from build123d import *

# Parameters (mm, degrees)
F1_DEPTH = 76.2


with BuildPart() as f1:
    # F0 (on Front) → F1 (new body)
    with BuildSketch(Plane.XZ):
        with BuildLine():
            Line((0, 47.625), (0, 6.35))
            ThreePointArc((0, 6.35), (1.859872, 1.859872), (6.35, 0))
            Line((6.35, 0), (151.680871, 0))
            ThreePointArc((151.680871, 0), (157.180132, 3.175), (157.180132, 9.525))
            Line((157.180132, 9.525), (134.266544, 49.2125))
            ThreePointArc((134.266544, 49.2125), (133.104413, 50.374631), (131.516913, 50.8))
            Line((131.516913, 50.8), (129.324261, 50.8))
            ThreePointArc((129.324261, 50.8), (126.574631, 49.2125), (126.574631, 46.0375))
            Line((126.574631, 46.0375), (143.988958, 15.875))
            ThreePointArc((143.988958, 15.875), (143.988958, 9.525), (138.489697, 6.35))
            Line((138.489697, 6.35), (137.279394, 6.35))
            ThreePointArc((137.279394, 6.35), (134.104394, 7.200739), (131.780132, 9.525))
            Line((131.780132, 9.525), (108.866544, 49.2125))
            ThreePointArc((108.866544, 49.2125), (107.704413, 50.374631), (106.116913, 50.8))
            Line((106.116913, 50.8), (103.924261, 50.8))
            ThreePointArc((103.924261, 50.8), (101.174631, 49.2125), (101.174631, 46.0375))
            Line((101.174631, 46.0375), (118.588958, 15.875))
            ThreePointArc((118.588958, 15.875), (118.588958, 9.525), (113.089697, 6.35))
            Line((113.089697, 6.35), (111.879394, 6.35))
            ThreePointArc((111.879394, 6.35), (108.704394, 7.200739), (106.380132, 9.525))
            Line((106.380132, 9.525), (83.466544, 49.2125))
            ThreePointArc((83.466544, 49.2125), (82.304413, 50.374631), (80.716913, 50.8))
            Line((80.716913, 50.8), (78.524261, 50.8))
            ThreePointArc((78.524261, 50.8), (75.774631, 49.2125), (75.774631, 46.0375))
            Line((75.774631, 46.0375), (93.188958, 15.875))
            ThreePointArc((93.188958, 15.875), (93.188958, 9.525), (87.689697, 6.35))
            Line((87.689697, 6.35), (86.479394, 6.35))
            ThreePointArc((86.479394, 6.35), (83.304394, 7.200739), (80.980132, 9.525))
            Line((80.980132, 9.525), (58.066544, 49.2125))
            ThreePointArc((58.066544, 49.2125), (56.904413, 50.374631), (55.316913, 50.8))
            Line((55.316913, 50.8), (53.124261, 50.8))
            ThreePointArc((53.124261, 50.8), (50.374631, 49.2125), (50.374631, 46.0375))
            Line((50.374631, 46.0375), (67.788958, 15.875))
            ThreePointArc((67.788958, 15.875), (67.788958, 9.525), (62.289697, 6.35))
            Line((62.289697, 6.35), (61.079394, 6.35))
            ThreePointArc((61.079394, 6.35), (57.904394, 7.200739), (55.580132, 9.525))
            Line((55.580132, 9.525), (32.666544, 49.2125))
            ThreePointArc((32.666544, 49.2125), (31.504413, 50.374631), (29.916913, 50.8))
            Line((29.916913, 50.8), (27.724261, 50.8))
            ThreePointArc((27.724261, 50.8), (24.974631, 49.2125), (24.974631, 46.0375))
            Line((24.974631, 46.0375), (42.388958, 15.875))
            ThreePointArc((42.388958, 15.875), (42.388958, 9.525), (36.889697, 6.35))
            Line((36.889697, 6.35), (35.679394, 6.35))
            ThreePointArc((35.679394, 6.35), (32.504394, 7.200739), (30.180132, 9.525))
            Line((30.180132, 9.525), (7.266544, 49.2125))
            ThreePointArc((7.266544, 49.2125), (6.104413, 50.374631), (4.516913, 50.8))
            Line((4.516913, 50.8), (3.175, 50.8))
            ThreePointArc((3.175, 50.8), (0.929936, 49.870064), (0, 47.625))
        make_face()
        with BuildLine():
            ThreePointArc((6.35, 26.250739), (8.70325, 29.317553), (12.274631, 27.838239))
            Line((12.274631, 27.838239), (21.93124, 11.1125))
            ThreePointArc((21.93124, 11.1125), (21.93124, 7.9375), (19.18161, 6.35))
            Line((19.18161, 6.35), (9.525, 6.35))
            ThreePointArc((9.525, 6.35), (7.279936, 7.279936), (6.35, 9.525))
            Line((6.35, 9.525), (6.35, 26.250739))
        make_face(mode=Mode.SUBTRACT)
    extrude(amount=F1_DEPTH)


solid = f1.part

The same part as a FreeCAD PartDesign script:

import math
import FreeCAD as App
import Part
import Sketcher
from FreeCAD import Vector
Q = App.Units.Quantity

doc = App.newDocument("Part")
body = doc.addObject("PartDesign::Body", "Body")

sketch1 = doc.addObject("Sketcher::SketchObject", "Sketch")
body.addObject(sketch1)
sketch1.AttachmentSupport = (doc.XZ_Plane, [""])
sketch1.MapMode = "FlatFace"
sketch1.addGeometry(Part.LineSegment(Vector(0, 47.625, 0), Vector(0, 6.35, 0)), False)
sketch1.addGeometry(Part.ArcOfCircle(Part.Circle(Vector(6.35, 6.35, 0), Vector(0, 0, 1), 6.35), math.radians(-179.999998), math.radians(-90.000002)), False)
sketch1.addGeometry(Part.LineSegment(Vector(6.35, 0, 0), Vector(151.680871, 0, 0)), False)
sketch1.addGeometry(Part.ArcOfCircle(Part.Circle(Vector(151.680871, 6.35, 0), Vector(0, 0, 1), 6.35), math.radians(-89.999997), math.radians(30)), False)
sketch1.addGeometry(Part.LineSegment(Vector(157.180132, 9.525, 0), Vector(134.266544, 49.2125, 0)), False)
sketch1.addGeometry(Part.ArcOfCircle(Part.Circle(Vector(131.516914, 47.625001, 0), Vector(0, 0, 1), 3.174999), math.radians(29.999992), math.radians(90.000015)), False)
sketch1.addGeometry(Part.LineSegment(Vector(131.516913, 50.8, 0), Vector(129.324261, 50.8, 0)), False)
sketch1.addGeometry(Part.ArcOfCircle(Part.Circle(Vector(129.324262, 47.625, 0), Vector(0, 0, 1), 3.175), math.radians(90.000012), math.radians(210)), False)
sketch1.addGeometry(Part.LineSegment(Vector(126.574631, 46.0375, 0), Vector(143.988958, 15.875, 0)), False)
sketch1.addGeometry(Part.ArcOfCircle(Part.Circle(Vector(138.489697, 12.7, 0), Vector(0, 0, 1), 6.35), math.radians(-89.999997), math.radians(30)), False)
sketch1.addGeometry(Part.LineSegment(Vector(138.489697, 6.35, 0), Vector(137.279394, 6.35, 0)), False)
sketch1.addGeometry(Part.ArcOfCircle(Part.Circle(Vector(137.279396, 12.700004, 0), Vector(0, 0, 1), 6.350004), math.radians(-149.999979), math.radians(-90.000015)), False)
sketch1.addGeometry(Part.LineSegment(Vector(131.780132, 9.525, 0), Vector(108.866544, 49.2125, 0)), False)
sketch1.addGeometry(Part.ArcOfCircle(Part.Circle(Vector(106.116914, 47.625001, 0), Vector(0, 0, 1), 3.174999), math.radians(29.999992), math.radians(90.000015)), False)
sketch1.addGeometry(Part.LineSegment(Vector(106.116913, 50.8, 0), Vector(103.924261, 50.8, 0)), False)
sketch1.addGeometry(Part.ArcOfCircle(Part.Circle(Vector(103.924262, 47.625, 0), Vector(0, 0, 1), 3.175), math.radians(90.000012), math.radians(210)), False)
sketch1.addGeometry(Part.LineSegment(Vector(101.174631, 46.0375, 0), Vector(118.588958, 15.875, 0)), False)
sketch1.addGeometry(Part.ArcOfCircle(Part.Circle(Vector(113.089697, 12.7, 0), Vector(0, 0, 1), 6.35), math.radians(-89.999997), math.radians(30)), False)
sketch1.addGeometry(Part.LineSegment(Vector(113.089697, 6.35, 0), Vector(111.879394, 6.35, 0)), False)
sketch1.addGeometry(Part.ArcOfCircle(Part.Circle(Vector(111.879396, 12.700004, 0), Vector(0, 0, 1), 6.350004), math.radians(-149.999979), math.radians(-90.000015)), False)
sketch1.addGeometry(Part.LineSegment(Vector(106.380132, 9.525, 0), Vector(83.466544, 49.2125, 0)), False)
sketch1.addGeometry(Part.ArcOfCircle(Part.Circle(Vector(80.716914, 47.625001, 0), Vector(0, 0, 1), 3.174999), math.radians(29.999992), math.radians(90.000015)), False)
sketch1.addGeometry(Part.LineSegment(Vector(80.716913, 50.8, 0), Vector(78.524261, 50.8, 0)), False)
sketch1.addGeometry(Part.ArcOfCircle(Part.Circle(Vector(78.524262, 47.625, 0), Vector(0, 0, 1), 3.175), math.radians(90.000012), math.radians(210)), False)
sketch1.addGeometry(Part.LineSegment(Vector(75.774631, 46.0375, 0), Vector(93.188958, 15.875, 0)), False)
sketch1.addGeometry(Part.ArcOfCircle(Part.Circle(Vector(87.689697, 12.7, 0), Vector(0, 0, 1), 6.35), math.radians(-89.999997), math.radians(30)), False)
sketch1.addGeometry(Part.LineSegment(Vector(87.689697, 6.35, 0), Vector(86.479394, 6.35, 0)), False)
sketch1.addGeometry(Part.ArcOfCircle(Part.Circle(Vector(86.479396, 12.700004, 0), Vector(0, 0, 1), 6.350004), math.radians(-149.999979), math.radians(-90.000015)), False)
sketch1.addGeometry(Part.LineSegment(Vector(80.980132, 9.525, 0), Vector(58.066544, 49.2125, 0)), False)
sketch1.addGeometry(Part.ArcOfCircle(Part.Circle(Vector(55.316914, 47.625001, 0), Vector(0, 0, 1), 3.174999), math.radians(29.999992), math.radians(90.000015)), False)
sketch1.addGeometry(Part.LineSegment(Vector(55.316913, 50.8, 0), Vector(53.124261, 50.8, 0)), False)
sketch1.addGeometry(Part.ArcOfCircle(Part.Circle(Vector(53.124262, 47.625, 0), Vector(0, 0, 1), 3.175), math.radians(90.000012), math.radians(210)), False)
sketch1.addGeometry(Part.LineSegment(Vector(50.374631, 46.0375, 0), Vector(67.788958, 15.875, 0)), False)
sketch1.addGeometry(Part.ArcOfCircle(Part.Circle(Vector(62.289697, 12.7, 0), Vector(0, 0, 1), 6.35), math.radians(-89.999997), math.radians(30)), False)
sketch1.addGeometry(Part.LineSegment(Vector(62.289697, 6.35, 0), Vector(61.079394, 6.35, 0)), False)
sketch1.addGeometry(Part.ArcOfCircle(Part.Circle(Vector(61.079396, 12.700004, 0), Vector(0, 0, 1), 6.350004), math.radians(-149.999979), math.radians(-90.000015)), False)
sketch1.addGeometry(Part.LineSegment(Vector(55.580132, 9.525, 0), Vector(32.666544, 49.2125, 0)), False)
sketch1.addGeometry(Part.ArcOfCircle(Part.Circle(Vector(29.916914, 47.625001, 0), Vector(0, 0, 1), 3.174999), math.radians(29.999992), math.radians(90.000015)), False)
sketch1.addGeometry(Part.LineSegment(Vector(29.916913, 50.8, 0), Vector(27.724261, 50.8, 0)), False)
sketch1.addGeometry(Part.ArcOfCircle(Part.Circle(Vector(27.724262, 47.625, 0), Vector(0, 0, 1), 3.175), math.radians(90.000012), math.radians(210)), False)
sketch1.addGeometry(Part.LineSegment(Vector(24.974631, 46.0375, 0), Vector(42.388958, 15.875, 0)), False)
sketch1.addGeometry(Part.ArcOfCircle(Part.Circle(Vector(36.889697, 12.7, 0), Vector(0, 0, 1), 6.35), math.radians(-89.999997), math.radians(30)), False)
sketch1.addGeometry(Part.LineSegment(Vector(36.889697, 6.35, 0), Vector(35.679394, 6.35, 0)), False)
sketch1.addGeometry(Part.ArcOfCircle(Part.Circle(Vector(35.679396, 12.700004, 0), Vector(0, 0, 1), 6.350004), math.radians(-149.999979), math.radians(-90.000015)), False)
sketch1.addGeometry(Part.LineSegment(Vector(30.180132, 9.525, 0), Vector(7.266544, 49.2125, 0)), False)
sketch1.addGeometry(Part.ArcOfCircle(Part.Circle(Vector(4.516914, 47.625001, 0), Vector(0, 0, 1), 3.174999), math.radians(29.999992), math.radians(90.000015)), False)
sketch1.addGeometry(Part.LineSegment(Vector(4.516913, 50.8, 0), Vector(3.175, 50.8, 0)), False)
sketch1.addGeometry(Part.ArcOfCircle(Part.Circle(Vector(3.175, 47.625, 0), Vector(0, 0, 1), 3.175), math.radians(90.000002), math.radians(179.999998)), False)
sketch1.addGeometry(Part.LineSegment(Vector(6.35, 9.525, 0), Vector(6.35, 26.250739, 0)), False)
sketch1.addGeometry(Part.ArcOfCircle(Part.Circle(Vector(9.525, 26.250738, 0), Vector(0, 0, 1), 3.175), math.radians(30.000015), math.radians(179.999983)), False)
sketch1.addGeometry(Part.LineSegment(Vector(12.274631, 27.838239, 0), Vector(21.93124, 11.1125, 0)), False)
sketch1.addGeometry(Part.ArcOfCircle(Part.Circle(Vector(19.181609, 9.525, 0), Vector(0, 0, 1), 3.175), math.radians(-89.999988), math.radians(30)), False)
sketch1.addGeometry(Part.LineSegment(Vector(19.18161, 6.35, 0), Vector(9.525, 6.35, 0)), False)
sketch1.addGeometry(Part.ArcOfCircle(Part.Circle(Vector(9.525, 9.525, 0), Vector(0, 0, 1), 3.175), math.radians(-179.999998), math.radians(-90.000002)), False)
sketch1.addConstraint(Sketcher.Constraint("Coincident", 0, 2, 1, 1))
sketch1.addConstraint(Sketcher.Constraint("Coincident", 1, 2, 2, 1))
sketch1.addConstraint(Sketcher.Constraint("Coincident", 2, 2, 3, 1))
sketch1.addConstraint(Sketcher.Constraint("Coincident", 3, 2, 4, 1))
sketch1.addConstraint(Sketcher.Constraint("Coincident", 4, 2, 5, 1))
sketch1.addConstraint(Sketcher.Constraint("Coincident", 5, 2, 6, 1))
sketch1.addConstraint(Sketcher.Constraint("Coincident", 6, 2, 7, 1))
sketch1.addConstraint(Sketcher.Constraint("Coincident", 7, 2, 8, 1))
sketch1.addConstraint(Sketcher.Constraint("Coincident", 8, 2, 9, 2))
sketch1.addConstraint(Sketcher.Constraint("Coincident", 9, 1, 10, 1))
sketch1.addConstraint(Sketcher.Constraint("Coincident", 10, 2, 11, 2))
sketch1.addConstraint(Sketcher.Constraint("Coincident", 11, 1, 12, 1))
sketch1.addConstraint(Sketcher.Constraint("Coincident", 12, 2, 13, 1))
sketch1.addConstraint(Sketcher.Constraint("Coincident", 13, 2, 14, 1))
sketch1.addConstraint(Sketcher.Constraint("Coincident", 14, 2, 15, 1))
sketch1.addConstraint(Sketcher.Constraint("Coincident", 15, 2, 16, 1))
sketch1.addConstraint(Sketcher.Constraint("Coincident", 16, 2, 17, 2))
sketch1.addConstraint(Sketcher.Constraint("Coincident", 17, 1, 18, 1))
sketch1.addConstraint(Sketcher.Constraint("Coincident", 18, 2, 19, 2))
sketch1.addConstraint(Sketcher.Constraint("Coincident", 19, 1, 20, 1))
sketch1.addConstraint(Sketcher.Constraint("Coincident", 20, 2, 21, 1))
sketch1.addConstraint(Sketcher.Constraint("Coincident", 21, 2, 22, 1))
sketch1.addConstraint(Sketcher.Constraint("Coincident", 22, 2, 23, 1))
sketch1.addConstraint(Sketcher.Constraint("Coincident", 23, 2, 24, 1))
sketch1.addConstraint(Sketcher.Constraint("Coincident", 24, 2, 25, 2))
sketch1.addConstraint(Sketcher.Constraint("Coincident", 25, 1, 26, 1))
sketch1.addConstraint(Sketcher.Constraint("Coincident", 26, 2, 27, 2))
sketch1.addConstraint(Sketcher.Constraint("Coincident", 27, 1, 28, 1))
sketch1.addConstraint(Sketcher.Constraint("Coincident", 28, 2, 29, 1))
sketch1.addConstraint(Sketcher.Constraint("Coincident", 29, 2, 30, 1))
sketch1.addConstraint(Sketcher.Constraint("Coincident", 30, 2, 31, 1))
sketch1.addConstraint(Sketcher.Constraint("Coincident", 31, 2, 32, 1))
sketch1.addConstraint(Sketcher.Constraint("Coincident", 32, 2, 33, 2))
sketch1.addConstraint(Sketcher.Constraint("Coincident", 33, 1, 34, 1))
sketch1.addConstraint(Sketcher.Constraint("Coincident", 34, 2, 35, 2))
sketch1.addConstraint(Sketcher.Constraint("Coincident", 35, 1, 36, 1))
sketch1.addConstraint(Sketcher.Constraint("Coincident", 36, 2, 37, 1))
sketch1.addConstraint(Sketcher.Constraint("Coincident", 37, 2, 38, 1))
sketch1.addConstraint(Sketcher.Constraint("Coincident", 38, 2, 39, 1))
sketch1.addConstraint(Sketcher.Constraint("Coincident", 39, 2, 40, 1))
sketch1.addConstraint(Sketcher.Constraint("Coincident", 40, 2, 41, 2))
sketch1.addConstraint(Sketcher.Constraint("Coincident", 41, 1, 42, 1))
sketch1.addConstraint(Sketcher.Constraint("Coincident", 42, 2, 43, 2))
sketch1.addConstraint(Sketcher.Constraint("Coincident", 43, 1, 44, 1))
sketch1.addConstraint(Sketcher.Constraint("Coincident", 44, 2, 45, 1))
sketch1.addConstraint(Sketcher.Constraint("Coincident", 45, 2, 46, 1))
sketch1.addConstraint(Sketcher.Constraint("Coincident", 46, 2, 47, 1))
sketch1.addConstraint(Sketcher.Constraint("Coincident", 47, 2, 0, 1))
sketch1.addConstraint(Sketcher.Constraint("Coincident", 48, 2, 49, 2))
sketch1.addConstraint(Sketcher.Constraint("Coincident", 49, 1, 50, 1))
sketch1.addConstraint(Sketcher.Constraint("Coincident", 50, 2, 51, 2))
sketch1.addConstraint(Sketcher.Constraint("Coincident", 51, 1, 52, 1))
sketch1.addConstraint(Sketcher.Constraint("Coincident", 52, 2, 53, 2))
sketch1.addConstraint(Sketcher.Constraint("Coincident", 53, 1, 48, 1))
sketch1.addConstraint(Sketcher.Constraint("Vertical", 0))
sketch1.addConstraint(Sketcher.Constraint("Horizontal", 2))
sketch1.addConstraint(Sketcher.Constraint("Horizontal", 6))
sketch1.addConstraint(Sketcher.Constraint("Horizontal", 10))
sketch1.addConstraint(Sketcher.Constraint("Horizontal", 14))
sketch1.addConstraint(Sketcher.Constraint("Horizontal", 18))
sketch1.addConstraint(Sketcher.Constraint("Horizontal", 22))
sketch1.addConstraint(Sketcher.Constraint("Horizontal", 26))
sketch1.addConstraint(Sketcher.Constraint("Horizontal", 30))
sketch1.addConstraint(Sketcher.Constraint("Horizontal", 34))
sketch1.addConstraint(Sketcher.Constraint("Horizontal", 38))
sketch1.addConstraint(Sketcher.Constraint("Horizontal", 42))
sketch1.addConstraint(Sketcher.Constraint("Horizontal", 46))
sketch1.addConstraint(Sketcher.Constraint("Vertical", 48))
sketch1.addConstraint(Sketcher.Constraint("Horizontal", 52))
sketch1.addConstraint(Sketcher.Constraint("PointOnObject", 0, 2, -2))
sketch1.addConstraint(Sketcher.Constraint("PointOnObject", 1, 2, -1))
sketch1.addConstraint(Sketcher.Constraint("Radius", 1, Q("0.25 in")))
sketch1.addConstraint(Sketcher.Constraint("Radius", 3, Q("0.25 in")))
sketch1.addConstraint(Sketcher.Constraint("Radius", 9, Q("0.25 in")))
sketch1.addConstraint(Sketcher.Constraint("Radius", 11, Q("0.2500002 in")))
sketch1.addConstraint(Sketcher.Constraint("Radius", 17, Q("0.25 in")))
sketch1.addConstraint(Sketcher.Constraint("Radius", 19, Q("0.2500002 in")))
sketch1.addConstraint(Sketcher.Constraint("Radius", 25, Q("0.25 in")))
sketch1.addConstraint(Sketcher.Constraint("Radius", 27, Q("0.2500002 in")))
sketch1.addConstraint(Sketcher.Constraint("Radius", 33, Q("0.25 in")))
sketch1.addConstraint(Sketcher.Constraint("Radius", 35, Q("0.2500002 in")))
sketch1.addConstraint(Sketcher.Constraint("Radius", 41, Q("0.25 in")))
sketch1.addConstraint(Sketcher.Constraint("Radius", 43, Q("0.2500002 in")))
sketch1.addConstraint(Sketcher.Constraint("DistanceY", -1, 1, 5, 2, Q("2 in")))
sketch1.addConstraint(Sketcher.Constraint("DistanceY", -1, 1, 13, 2, Q("2 in")))
sketch1.addConstraint(Sketcher.Constraint("DistanceY", -1, 1, 21, 2, Q("2 in")))
sketch1.addConstraint(Sketcher.Constraint("DistanceY", -1, 1, 29, 2, Q("2 in")))
sketch1.addConstraint(Sketcher.Constraint("DistanceY", -1, 1, 37, 2, Q("2 in")))
sketch1.addConstraint(Sketcher.Constraint("DistanceY", -1, 1, 45, 2, Q("2 in")))
sketch1.addConstraint(Sketcher.Constraint("Radius", 5, Q("0.125 in")))
sketch1.addConstraint(Sketcher.Constraint("Radius", 7, Q("0.125 in")))
sketch1.addConstraint(Sketcher.Constraint("Radius", 13, Q("0.125 in")))
sketch1.addConstraint(Sketcher.Constraint("Radius", 15, Q("0.125 in")))
sketch1.addConstraint(Sketcher.Constraint("Radius", 21, Q("0.125 in")))
sketch1.addConstraint(Sketcher.Constraint("Radius", 23, Q("0.125 in")))
sketch1.addConstraint(Sketcher.Constraint("Radius", 29, Q("0.125 in")))
sketch1.addConstraint(Sketcher.Constraint("Radius", 31, Q("0.125 in")))
sketch1.addConstraint(Sketcher.Constraint("Radius", 37, Q("0.125 in")))
sketch1.addConstraint(Sketcher.Constraint("Radius", 39, Q("0.125 in")))
sketch1.addConstraint(Sketcher.Constraint("Radius", 45, Q("0.125 in")))
sketch1.addConstraint(Sketcher.Constraint("Radius", 47, Q("0.125 in")))
sketch1.addConstraint(Sketcher.Constraint("Radius", 49, Q("0.125 in")))
sketch1.addConstraint(Sketcher.Constraint("Radius", 51, Q("0.125 in")))
sketch1.addConstraint(Sketcher.Constraint("Radius", 53, Q("0.125 in")))
sketch1.addConstraint(Sketcher.Constraint("DistanceY", -1, 1, 9, 3, Q("0.5 in")))
sketch1.addConstraint(Sketcher.Constraint("DistanceY", -1, 1, 17, 3, Q("0.5 in")))
sketch1.addConstraint(Sketcher.Constraint("DistanceY", -1, 1, 25, 3, Q("0.5 in")))
sketch1.addConstraint(Sketcher.Constraint("DistanceY", -1, 1, 33, 3, Q("0.5 in")))
sketch1.addConstraint(Sketcher.Constraint("DistanceY", -1, 1, 41, 3, Q("0.5 in")))
sketch1.addConstraint(Sketcher.Constraint("DistanceY", 0, 2, 0, 1, Q("1.625 in")))
sketch1.addConstraint(Sketcher.Constraint("DistanceY", -1, 1, 0, 2, Q("0.25 in")))
sketch1.addConstraint(Sketcher.Constraint("DistanceX", -1, 1, 1, 2, Q("0.25 in")))
sketch1.addConstraint(Sketcher.Constraint("DistanceX", -1, 1, 48, 2, Q("0.25 in")))
sketch1.addConstraint(Sketcher.Constraint("DistanceY", -1, 1, 51, 1, Q("0.25 in")))
sketch1.addConstraint(Sketcher.Constraint("DistanceY", -1, 1, 3, 2, Q("0.375 in")))
sketch1.addConstraint(Sketcher.Constraint("DistanceY", -1, 1, 4, 2, Q("1.9375 in")))
sketch1.addConstraint(Sketcher.Constraint("DistanceY", -1, 1, 7, 2, Q("1.8125 in")))
sketch1.addConstraint(Sketcher.Constraint("DistanceY", -1, 1, 8, 2, Q("0.625 in")))
sketch1.addConstraint(Sketcher.Constraint("DistanceY", -1, 1, 11, 1, Q("0.375 in")))
sketch1.addConstraint(Sketcher.Constraint("DistanceY", -1, 1, 12, 2, Q("1.9375 in")))
sketch1.addConstraint(Sketcher.Constraint("DistanceY", -1, 1, 15, 2, Q("1.8125 in")))
sketch1.addConstraint(Sketcher.Constraint("DistanceY", -1, 1, 16, 2, Q("0.625 in")))
sketch1.addConstraint(Sketcher.Constraint("DistanceY", -1, 1, 19, 1, Q("0.375 in")))
sketch1.addConstraint(Sketcher.Constraint("DistanceY", -1, 1, 20, 2, Q("1.9375 in")))
sketch1.addConstraint(Sketcher.Constraint("DistanceY", -1, 1, 23, 2, Q("1.8125 in")))
sketch1.addConstraint(Sketcher.Constraint("DistanceY", -1, 1, 24, 2, Q("0.625 in")))
sketch1.addConstraint(Sketcher.Constraint("DistanceY", -1, 1, 27, 1, Q("0.375 in")))
sketch1.addConstraint(Sketcher.Constraint("DistanceY", -1, 1, 28, 2, Q("1.9375 in")))
sketch1.addConstraint(Sketcher.Constraint("DistanceY", -1, 1, 31, 2, Q("1.8125 in")))
sketch1.addConstraint(Sketcher.Constraint("DistanceY", -1, 1, 32, 2, Q("0.625 in")))
sketch1.addConstraint(Sketcher.Constraint("DistanceY", -1, 1, 35, 1, Q("0.375 in")))
sketch1.addConstraint(Sketcher.Constraint("DistanceY", -1, 1, 36, 2, Q("1.9375 in")))
sketch1.addConstraint(Sketcher.Constraint("DistanceY", -1, 1, 39, 2, Q("1.8125 in")))
sketch1.addConstraint(Sketcher.Constraint("DistanceY", -1, 1, 40, 2, Q("0.625 in")))
sketch1.addConstraint(Sketcher.Constraint("DistanceY", -1, 1, 43, 1, Q("0.375 in")))
sketch1.addConstraint(Sketcher.Constraint("DistanceY", -1, 1, 44, 2, Q("1.9375 in")))
sketch1.addConstraint(Sketcher.Constraint("DistanceX", -1, 1, 46, 2, Q("0.125 in")))
sketch1.addConstraint(Sketcher.Constraint("DistanceY", -1, 1, 50, 2, Q("0.4375 in")))
sketch1.addConstraint(Sketcher.Constraint("DistanceX", -1, 1, 52, 2, Q("0.375 in")))
sketch1.addConstraint(Sketcher.Constraint("DistanceY", -1, 1, 53, 1, Q("0.375 in")))
sketch1.addConstraint(Sketcher.Constraint("DistanceX", 2, 1, 2, 2, 145.330871))
sketch1.addConstraint(Sketcher.Constraint("DistanceX", 6, 2, 6, 1, 2.192652))
sketch1.addConstraint(Sketcher.Constraint("DistanceX", 14, 2, 14, 1, 2.192652))
sketch1.addConstraint(Sketcher.Constraint("DistanceX", 52, 2, 52, 1, 9.65661))
sketch1.addConstraint(Sketcher.Constraint("DistanceY", 48, 1, 48, 2, 16.725739))
sketch1.addConstraint(Sketcher.Constraint("Distance", 50, 19.313219))
sketch1.addConstraint(Sketcher.Constraint("DistanceX", 10, 2, 10, 1, 1.210303))
sketch1.addConstraint(Sketcher.Constraint("DistanceX", 18, 2, 18, 1, 1.210303))
sketch1.addConstraint(Sketcher.Constraint("DistanceX", 22, 2, 22, 1, 2.192652))
sketch1.addConstraint(Sketcher.Constraint("DistanceX", 26, 2, 26, 1, 1.210303))
sketch1.addConstraint(Sketcher.Constraint("DistanceX", 30, 2, 30, 1, 2.192652))
sketch1.addConstraint(Sketcher.Constraint("DistanceX", 34, 2, 34, 1, 1.210303))
sketch1.addConstraint(Sketcher.Constraint("DistanceX", 38, 2, 38, 1, 2.192652))
sketch1.addConstraint(Sketcher.Constraint("DistanceX", 42, 2, 42, 1, 1.210303))
sketch1.addConstraint(Sketcher.Constraint("DistanceX", 46, 2, 46, 1, 1.341913))
sketch1.addConstraint(Sketcher.Constraint("DistanceX", -1, 1, 3, 3, 151.680871))
sketch1.addConstraint(Sketcher.Constraint("DistanceX", -1, 1, 7, 3, 129.324262))
sketch1.addConstraint(Sketcher.Constraint("DistanceX", -1, 1, 15, 3, 103.924262))
sketch1.addConstraint(Sketcher.Constraint("DistanceX", -1, 1, 23, 3, 78.524262))
sketch1.addConstraint(Sketcher.Constraint("DistanceX", -1, 1, 31, 3, 53.124262))
sketch1.addConstraint(Sketcher.Constraint("DistanceX", -1, 1, 39, 3, 27.724262))
sketch1.addConstraint(Sketcher.Constraint("DistanceY", -1, 1, 49, 3, 26.250738))
sketch1.addConstraint(Sketcher.Constraint("DistanceX", -1, 1, 51, 3, 19.181609))
sketch1.addConstraint(Sketcher.Constraint("DistanceX", -1, 1, 6, 2, 129.324261))
sketch1.addConstraint(Sketcher.Constraint("DistanceX", -1, 1, 8, 2, 143.988958))
sketch1.addConstraint(Sketcher.Constraint("DistanceX", -1, 1, 14, 2, 103.924261))
sketch1.addConstraint(Sketcher.Constraint("DistanceX", -1, 1, 16, 2, 118.588958))
sketch1.addConstraint(Sketcher.Constraint("DistanceX", -1, 1, 22, 2, 78.524261))
sketch1.addConstraint(Sketcher.Constraint("DistanceX", -1, 1, 24, 2, 93.188958))
sketch1.addConstraint(Sketcher.Constraint("DistanceX", -1, 1, 30, 2, 53.124261))
sketch1.addConstraint(Sketcher.Constraint("DistanceX", -1, 1, 38, 2, 27.724261))
sketch1.addConstraint(Sketcher.Constraint("DistanceX", -1, 1, 40, 2, 42.388958))
sketch1.addConstraint(Sketcher.Constraint("Distance", 4, 45.827177))
sketch1.addConstraint(Sketcher.Constraint("Distance", 12, 45.827177))
sketch1.addConstraint(Sketcher.Constraint("Distance", 20, 45.827177))
sketch1.addConstraint(Sketcher.Constraint("Distance", 28, 45.827177))
sketch1.addConstraint(Sketcher.Constraint("Distance", 32, 34.828655))
sketch1.addConstraint(Sketcher.Constraint("Distance", 36, 45.827177))
sketch1.addConstraint(Sketcher.Constraint("Distance", 44, 45.827177))
sketch1.addConstraint(Sketcher.Constraint("DistanceX", -1, 1, 11, 3, 137.279396))
sketch1.addConstraint(Sketcher.Constraint("DistanceX", -1, 1, 19, 3, 111.879396))
sketch1.addConstraint(Sketcher.Constraint("DistanceX", -1, 1, 27, 3, 86.479396))
sketch1.addConstraint(Sketcher.Constraint("DistanceX", -1, 1, 35, 3, 61.079396))
sketch1.addConstraint(Sketcher.Constraint("DistanceX", -1, 1, 43, 3, 35.679396))
sketch1.addConstraint(Sketcher.Constraint("DistanceX", -1, 1, 9, 1, 138.489697))
sketch1.addConstraint(Sketcher.Constraint("DistanceX", -1, 1, 17, 1, 113.089697))
sketch1.addConstraint(Sketcher.Constraint("DistanceX", -1, 1, 25, 1, 87.689697))
sketch1.addConstraint(Sketcher.Constraint("DistanceX", -1, 1, 33, 1, 62.289697))
sketch1.addConstraint(Sketcher.Constraint("DistanceX", -1, 1, 41, 1, 36.889697))
pad1 = doc.addObject("PartDesign::Pad", "Pad")
body.addObject(pad1)
pad1.Profile = sketch1
pad1.Length = Q("3 in")

doc.recompute()
